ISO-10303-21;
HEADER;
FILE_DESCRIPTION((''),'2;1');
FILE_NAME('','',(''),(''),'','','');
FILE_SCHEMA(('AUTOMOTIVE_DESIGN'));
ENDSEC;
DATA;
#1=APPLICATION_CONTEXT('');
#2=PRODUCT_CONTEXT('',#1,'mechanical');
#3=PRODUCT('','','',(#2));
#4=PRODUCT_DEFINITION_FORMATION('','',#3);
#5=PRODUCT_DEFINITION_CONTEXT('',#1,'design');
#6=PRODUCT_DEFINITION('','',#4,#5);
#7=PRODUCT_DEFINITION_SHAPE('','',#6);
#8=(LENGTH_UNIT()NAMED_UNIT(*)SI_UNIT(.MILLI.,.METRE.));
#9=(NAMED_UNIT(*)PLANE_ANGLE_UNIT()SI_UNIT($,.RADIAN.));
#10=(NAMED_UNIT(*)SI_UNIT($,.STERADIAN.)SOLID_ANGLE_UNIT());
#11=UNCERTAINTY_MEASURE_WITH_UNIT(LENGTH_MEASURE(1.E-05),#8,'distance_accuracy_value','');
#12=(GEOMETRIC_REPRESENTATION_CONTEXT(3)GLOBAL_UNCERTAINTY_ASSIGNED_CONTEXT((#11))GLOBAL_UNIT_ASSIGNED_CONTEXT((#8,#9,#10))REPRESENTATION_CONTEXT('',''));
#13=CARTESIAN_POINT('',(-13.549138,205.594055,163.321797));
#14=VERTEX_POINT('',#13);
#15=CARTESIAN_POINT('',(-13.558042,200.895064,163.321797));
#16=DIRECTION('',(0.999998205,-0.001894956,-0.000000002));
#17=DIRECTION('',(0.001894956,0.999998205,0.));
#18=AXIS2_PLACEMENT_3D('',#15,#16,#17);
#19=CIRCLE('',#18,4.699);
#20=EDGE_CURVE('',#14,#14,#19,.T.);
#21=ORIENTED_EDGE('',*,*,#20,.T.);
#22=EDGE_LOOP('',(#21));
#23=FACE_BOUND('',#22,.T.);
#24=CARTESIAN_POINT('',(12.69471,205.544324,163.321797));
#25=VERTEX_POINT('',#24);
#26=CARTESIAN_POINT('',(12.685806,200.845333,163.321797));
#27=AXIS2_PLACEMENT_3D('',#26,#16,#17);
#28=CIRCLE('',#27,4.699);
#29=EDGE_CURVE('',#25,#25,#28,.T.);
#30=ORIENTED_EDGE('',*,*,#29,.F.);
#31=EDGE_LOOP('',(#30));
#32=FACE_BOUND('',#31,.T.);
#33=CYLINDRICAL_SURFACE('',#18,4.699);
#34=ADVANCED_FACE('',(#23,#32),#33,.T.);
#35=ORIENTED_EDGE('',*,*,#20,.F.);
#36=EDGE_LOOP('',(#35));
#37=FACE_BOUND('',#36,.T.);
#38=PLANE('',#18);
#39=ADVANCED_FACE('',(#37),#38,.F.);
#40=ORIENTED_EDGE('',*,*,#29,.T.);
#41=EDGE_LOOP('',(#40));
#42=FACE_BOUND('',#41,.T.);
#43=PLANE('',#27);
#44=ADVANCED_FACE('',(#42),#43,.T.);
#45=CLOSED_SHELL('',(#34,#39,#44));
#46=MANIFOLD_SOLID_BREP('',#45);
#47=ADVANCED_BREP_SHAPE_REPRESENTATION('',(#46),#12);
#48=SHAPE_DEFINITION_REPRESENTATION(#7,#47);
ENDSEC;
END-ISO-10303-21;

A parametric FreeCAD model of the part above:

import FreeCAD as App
import Part
import Sketcher
Q = App.Units.Quantity

doc = App.newDocument("Part")
body = doc.addObject("PartDesign::Body", "Body")

# Sketch on an angled plane
sketch1 = body.newObject("Sketcher::SketchObject", "Sketch")
sketch1.Placement = App.Placement(App.Vector(-13.558042, 200.895064, 163.321797), App.Rotation(App.Vector(0.001894956, 0.999998205, 0), App.Vector(0.000000002, 0, 1.000000001), App.Vector(0.999998205, -0.001894956, -0.000000002), "ZXY"))
sketch1.addGeometry(Part.Circle(App.Vector(0, 0, 0), App.Vector(0, 0, 1), 4.7), False)
sketch1.addConstraint(Sketcher.Constraint("Coincident", 0, 3, -1, 1))
sketch1.addConstraint(Sketcher.Constraint("Diameter", 0, Q("0.37 in")))

# Sketch on an angled plane
sketch2 = body.newObject("Sketcher::SketchObject", "Sketch001")
sketch2.Placement = App.Placement(App.Vector(0.380638, 200.86865, 0), App.Rotation(App.Vector(0.999998205, -0.001894956, 0), App.Vector(0, 0, 1.000000001), App.Vector(-0.001894956, -0.999998205, 0), "ZXY"))
sketch2.addGeometry(Part.LineSegment(App.Vector(-14, 163, 0), App.Vector(12, 163, 0)), False)
sketch2.addConstraint(Sketcher.Constraint("Horizontal", 0))
sketch2.addConstraint(Sketcher.Constraint("DistanceX", 0, 1, 0, 2, Q("26.243895 mm")))
sketch2.addConstraint(Sketcher.Constraint("DistanceX", -1, 1, 0, 2, Q("12.30519 mm")))
sketch2.addConstraint(Sketcher.Constraint("DistanceY", -1, 1, 0, 1, Q("163.321797 mm")))
doc.recompute()

additivepipe = body.newObject("PartDesign::AdditivePipe", "AdditivePipe")
additivepipe.Profile = sketch1
additivepipe.Spine = (sketch2, ["Edge1"])

doc.recompute()
